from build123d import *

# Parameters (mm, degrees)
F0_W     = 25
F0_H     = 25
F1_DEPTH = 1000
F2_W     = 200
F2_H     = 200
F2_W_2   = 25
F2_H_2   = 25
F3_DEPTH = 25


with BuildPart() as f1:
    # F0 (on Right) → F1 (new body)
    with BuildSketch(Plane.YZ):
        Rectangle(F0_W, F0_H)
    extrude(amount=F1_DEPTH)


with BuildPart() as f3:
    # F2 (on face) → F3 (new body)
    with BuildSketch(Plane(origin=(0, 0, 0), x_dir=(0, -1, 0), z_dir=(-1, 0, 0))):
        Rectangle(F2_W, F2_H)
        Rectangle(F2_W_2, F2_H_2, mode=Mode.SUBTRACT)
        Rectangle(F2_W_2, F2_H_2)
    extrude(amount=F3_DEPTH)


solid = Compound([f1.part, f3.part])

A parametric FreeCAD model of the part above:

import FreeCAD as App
import Part
import Sketcher

V = App.Vector
Q = App.Units.Quantity


def add_polygon(sketch, points):
    """Adds a closed chain of lines whose ends are joined by coincident constraints."""
    first, n = sketch.GeometryCount, len(points)
    for a, b in zip(points, points[1:] + points[:1]):
        sketch.addGeometry(Part.LineSegment(App.Vector(*a, 0), App.Vector(*b, 0)), False)
    for i in range(n):
        sketch.addConstraint(Sketcher.Constraint("Coincident", first + i, 2, first + (i + 1) % n, 1))

doc = App.newDocument("Part")
body = doc.addObject("PartDesign::Body", "Body")

sketch1 = body.newObject("Sketcher::SketchObject", "Sketch")
sketch1.AttachmentSupport = (doc.getObject("YZ_Plane"), [""])
sketch1.MapMode = "FlatFace"
add_polygon(sketch1, [(-12.5, 12.5), (-12.5, -12.5), (12.5, -12.5), (12.5, 12.5)])
sketch1.addConstraint([
    Sketcher.Constraint("Vertical", 0),
    Sketcher.Constraint("Horizontal", 1),
    Sketcher.Constraint("Vertical", 2),
    Sketcher.Constraint("Horizontal", 3),
    Sketcher.Constraint("Symmetric", 0, 2, 2, 2, -1, 1),
    Sketcher.Constraint("Equal", 3, 0),
    Sketcher.Constraint("DistanceX", 1, 1, 1, 2, Q("25 mm")),
])
pad1 = body.newObject("PartDesign::Pad", "Pad")
pad1.Profile = sketch1
pad1.Length = 1000
body2 = doc.addObject("PartDesign::Body", "Body001")

sketch2 = body2.newObject("Sketcher::SketchObject", "Sketch001")
sketch2.AttachmentSupport = (doc.getObject("YZ_Plane001"), [""])
sketch2.MapMode = "FlatFace"
add_polygon(sketch2, [(100, 100), (100, -100), (-100, -100), (-100, 100)])
sketch2.addConstraint([
    Sketcher.Constraint("Vertical", 0),
    Sketcher.Constraint("Horizontal", 1),
    Sketcher.Constraint("Vertical", 2),
    Sketcher.Constraint("Horizontal", 3),
    Sketcher.Constraint("Symmetric", 0, 2, 2, 2, -1, 1),
    Sketcher.Constraint("Equal", 3, 0),
    Sketcher.Constraint("DistanceX", 1, 2, 1, 1, Q("200 mm")),
])
pad2 = body2.newObject("PartDesign::Pad", "Pad001")
pad2.Profile = sketch2
pad2.Length = 25
pad2.Reversed = True

doc.recompute()
